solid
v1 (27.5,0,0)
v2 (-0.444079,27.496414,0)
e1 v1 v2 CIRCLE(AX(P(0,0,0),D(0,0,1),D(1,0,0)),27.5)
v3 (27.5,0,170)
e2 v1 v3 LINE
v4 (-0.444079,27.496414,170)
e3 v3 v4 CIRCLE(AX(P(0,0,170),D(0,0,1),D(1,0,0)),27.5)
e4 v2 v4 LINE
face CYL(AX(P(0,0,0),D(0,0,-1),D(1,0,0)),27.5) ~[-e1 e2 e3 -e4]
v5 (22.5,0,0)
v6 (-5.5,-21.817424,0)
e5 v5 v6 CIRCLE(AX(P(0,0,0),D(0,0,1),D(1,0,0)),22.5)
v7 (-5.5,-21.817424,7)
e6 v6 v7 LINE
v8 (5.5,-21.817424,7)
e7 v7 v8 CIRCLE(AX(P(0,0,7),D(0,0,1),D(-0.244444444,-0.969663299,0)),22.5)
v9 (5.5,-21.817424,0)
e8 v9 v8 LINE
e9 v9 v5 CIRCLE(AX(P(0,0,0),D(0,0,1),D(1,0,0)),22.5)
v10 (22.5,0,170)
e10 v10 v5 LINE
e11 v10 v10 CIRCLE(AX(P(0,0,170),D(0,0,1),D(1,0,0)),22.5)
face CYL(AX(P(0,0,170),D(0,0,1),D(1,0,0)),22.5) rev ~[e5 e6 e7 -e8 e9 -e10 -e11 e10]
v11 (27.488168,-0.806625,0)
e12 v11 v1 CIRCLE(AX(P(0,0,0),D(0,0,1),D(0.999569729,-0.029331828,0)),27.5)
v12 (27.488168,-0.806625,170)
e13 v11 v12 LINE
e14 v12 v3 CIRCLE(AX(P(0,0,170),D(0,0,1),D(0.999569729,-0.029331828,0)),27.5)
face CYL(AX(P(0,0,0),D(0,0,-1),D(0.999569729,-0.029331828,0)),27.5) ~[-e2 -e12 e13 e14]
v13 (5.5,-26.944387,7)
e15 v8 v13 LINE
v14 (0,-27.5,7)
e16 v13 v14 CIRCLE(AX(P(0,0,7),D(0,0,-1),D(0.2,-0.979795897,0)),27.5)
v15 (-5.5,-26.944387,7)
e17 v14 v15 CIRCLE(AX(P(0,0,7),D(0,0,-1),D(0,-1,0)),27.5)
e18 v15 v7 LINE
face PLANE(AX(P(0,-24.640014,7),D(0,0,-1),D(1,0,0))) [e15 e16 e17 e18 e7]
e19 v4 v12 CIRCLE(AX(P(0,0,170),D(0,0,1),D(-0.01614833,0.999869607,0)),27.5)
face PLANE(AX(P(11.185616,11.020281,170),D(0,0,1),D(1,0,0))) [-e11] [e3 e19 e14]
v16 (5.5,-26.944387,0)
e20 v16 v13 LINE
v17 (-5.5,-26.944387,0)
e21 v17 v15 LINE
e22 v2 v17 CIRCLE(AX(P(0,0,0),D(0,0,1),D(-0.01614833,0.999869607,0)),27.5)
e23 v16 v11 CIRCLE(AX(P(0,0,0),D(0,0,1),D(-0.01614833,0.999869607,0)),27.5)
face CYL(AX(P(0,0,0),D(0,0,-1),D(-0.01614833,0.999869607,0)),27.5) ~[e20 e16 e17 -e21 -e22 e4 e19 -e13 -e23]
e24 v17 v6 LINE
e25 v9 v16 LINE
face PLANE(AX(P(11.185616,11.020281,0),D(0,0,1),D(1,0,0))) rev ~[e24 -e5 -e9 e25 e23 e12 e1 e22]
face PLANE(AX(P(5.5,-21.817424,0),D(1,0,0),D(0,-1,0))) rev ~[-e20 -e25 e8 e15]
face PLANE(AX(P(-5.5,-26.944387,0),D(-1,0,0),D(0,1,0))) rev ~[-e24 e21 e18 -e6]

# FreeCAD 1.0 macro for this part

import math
import FreeCAD as App
import Part
import Sketcher

V = App.Vector

doc = App.newDocument("Part")
params = doc.addObject("Spreadsheet::Sheet", "Params")
for row, (alias, value) in enumerate([
    ("sketch1_radius", "27.5 mm"),
    ("pad1_length", "170 mm"),
    ("sketch2_diameter", "45 mm"),
    ("pocket1_length", "170 mm"),
    ("sketch3_radius", "22.5 mm"),
    ("sketch3_radius2", "27.5 mm"),
    ("pocket2_length", "7 mm"),
], start=1):
    params.set(f"A{row}", alias)
    params.set(f"B{row}", "=" + value)
    params.setAlias(f"B{row}", alias)

body = doc.addObject("PartDesign::Body", "Body")

# Sketch on XY plane
sketch1 = body.newObject("Sketcher::SketchObject", "Sketch")
sketch1.AttachmentSupport = (doc.getObject("XY_Plane"), [""])
sketch1.MapMode = "FlatFace"
sketch1.addGeometry([
    Part.ArcOfCircle(Part.Circle(V(0, 0, 0), V(0, 0, 1), 27.5), math.radians(-1.680831), math.radians(0)),
    Part.ArcOfCircle(Part.Circle(V(0, 0, 0), V(0, 0, 1), 27.5), math.radians(0), math.radians(90.925271)),
    Part.ArcOfCircle(Part.Circle(V(0, 0, 0), V(0, 0, 1), 27.5), math.radians(90.925271), math.radians(358.319169)),
], False)
sketch1.addConstraint([
    Sketcher.Constraint("Tangent", 0, 2, 1, 1),
    Sketcher.Constraint("Tangent", 1, 2, 2, 1),
    Sketcher.Constraint("Coincident", 2, 2, 0, 1),
    Sketcher.Constraint("Coincident", 0, 3, -1, 1),
    Sketcher.Constraint("Equal", 0, 1),
    Sketcher.Constraint("PointOnObject", 0, 2, -1),
    Sketcher.Constraint("Radius", 0, 27.5),
    Sketcher.Constraint("DistanceX", 1, 2, -1, 1, 0.444079),
    Sketcher.Constraint("DistanceY", 2, 2, 1, 2, 28.303039),
])
sketch1.setExpression("Constraints[6]", "Params.sketch1_radius")
pad1 = body.newObject("PartDesign::Pad", "Pad")
pad1.Profile = sketch1
pad1.setExpression("Length", "Params.pad1_length")

# Sketch on XY plane
sketch2 = body.newObject("Sketcher::SketchObject", "Sketch001")
sketch2.AttachmentSupport = (doc.getObject("XY_Plane"), [""])
sketch2.MapMode = "FlatFace"
sketch2.AttachmentOffset = App.Placement(V(0, 0, 170), App.Rotation())
sketch2.addGeometry(Part.Circle(V(0, 0, 0), V(0, 0, 1), 22.5), False)
sketch2.addConstraint([
    Sketcher.Constraint("Coincident", 0, 3, -1, 1),
    Sketcher.Constraint("Diameter", 0, 45.0),
])
sketch2.setExpression("Constraints[1]", "Params.sketch2_diameter")
pocket1 = body.newObject("PartDesign::Pocket", "Pocket")
pocket1.Profile = sketch2
pocket1.setExpression("Length", "Params.pocket1_length")

# Sketch on XY plane
sketch3 = body.newObject("Sketcher::SketchObject", "Sketch002")
sketch3.AttachmentSupport = (doc.getObject("XY_Plane"), [""])
sketch3.MapMode = "FlatFace"
sketch3.addGeometry([
    Part.ArcOfCircle(Part.Circle(V(0, 0, 0), V(0, 0, 1), 22.5), math.radians(-104.149005), math.radians(-75.850995)),  # 0
    Part.LineSegment(V(5.5, -21.817424, 0), V(5.5, -26.944387, 0)),  # 1
    Part.ArcOfCircle(Part.Circle(V(0, 0, 0), V(0, 0, 1), 27.5), math.radians(-90), math.radians(-78.463041)),  # 2
    Part.ArcOfCircle(Part.Circle(V(0, 0, 0), V(0, 0, 1), 27.5), math.radians(-101.536959), math.radians(-90)),  # 3
    Part.LineSegment(V(-5.5, -26.944387, 0), V(-5.5, -21.817424, 0)),  # 4
], False)
sketch3.addConstraint([
    Sketcher.Constraint("Coincident", 0, 2, 1, 1),
    Sketcher.Constraint("Coincident", 1, 2, 2, 2),
    Sketcher.Constraint("Tangent", 2, 1, 3, 2),
    Sketcher.Constraint("Coincident", 3, 1, 4, 1),
    Sketcher.Constraint("Coincident", 4, 2, 0, 1),
    Sketcher.Constraint("Vertical", 1),
    Sketcher.Constraint("Vertical", 4),
    Sketcher.Constraint("Coincident", 0, 3, -1, 1),
    Sketcher.Constraint("Coincident", 2, 3, -1, 1),
    Sketcher.Constraint("Equal", 2, 3),
    Sketcher.Constraint("PointOnObject", 2, 1, -2),
    Sketcher.Constraint("Horizontal", 1, 2, 3, 1),
    Sketcher.Constraint("Radius", 0, 22.5),
    Sketcher.Constraint("Radius", 2, 27.5),
    Sketcher.Constraint("DistanceX", 3, 1, 1, 2, 11.0),
])
sketch3.setExpression("Constraints[12]", "Params.sketch3_radius")
sketch3.setExpression("Constraints[13]", "Params.sketch3_radius2")
pocket2 = body.newObject("PartDesign::Pocket", "Pocket001")
pocket2.Profile = sketch3
pocket2.setExpression("Length", "Params.pocket2_length")
pocket2.Reversed = True

doc.recompute()
